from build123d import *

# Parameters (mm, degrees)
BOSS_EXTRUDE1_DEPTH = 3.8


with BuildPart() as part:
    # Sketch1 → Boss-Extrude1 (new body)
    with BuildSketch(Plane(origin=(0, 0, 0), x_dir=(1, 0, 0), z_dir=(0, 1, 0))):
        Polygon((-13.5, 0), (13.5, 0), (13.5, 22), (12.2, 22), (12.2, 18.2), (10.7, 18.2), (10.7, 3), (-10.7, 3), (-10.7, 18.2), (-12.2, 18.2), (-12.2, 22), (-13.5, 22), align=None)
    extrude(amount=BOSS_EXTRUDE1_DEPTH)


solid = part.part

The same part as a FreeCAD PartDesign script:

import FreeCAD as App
import Part
import Sketcher
from FreeCAD import Vector
Q = App.Units.Quantity

doc = App.newDocument("Part")
params = doc.addObject("Spreadsheet::Sheet", "Params")
for row, (alias, value) in enumerate([
    ("sketch1_width", "27 mm"),
    ("sketch1_height", "22 mm"),
    ("sketch1_width2", "1.3 mm"),
    ("sketch1_width3", "1.5 mm"),
    ("sketch1_height2", "3.8 mm"),
    ("pad1_length", "3.8 mm"),
], start=1):
    params.set(f"A{row}", alias)
    params.set(f"B{row}", "=" + value)
    params.setAlias(f"B{row}", alias)

body = doc.addObject("PartDesign::Body", "Body")

# Sketch on XZ plane
sketch1 = body.newObject("Sketcher::SketchObject", "Sketch")
sketch1.AttachmentSupport = (doc.getObject("XZ_Plane"), [""])
sketch1.MapMode = "FlatFace"
sketch1.addGeometry(Part.LineSegment(Vector(-13.5, 0, 0), Vector(13.5, 0, 0)), False)
sketch1.addGeometry(Part.LineSegment(Vector(13.5, 0, 0), Vector(13.5, -22, 0)), False)
sketch1.addGeometry(Part.LineSegment(Vector(13.5, -22, 0), Vector(12.2, -22, 0)), False)
sketch1.addGeometry(Part.LineSegment(Vector(12.2, -22, 0), Vector(12.2, -18.2, 0)), False)
sketch1.addGeometry(Part.LineSegment(Vector(12.2, -18.2, 0), Vector(10.7, -18.2, 0)), False)
sketch1.addGeometry(Part.LineSegment(Vector(10.7, -18.2, 0), Vector(10.7, -3, 0)), False)
sketch1.addGeometry(Part.LineSegment(Vector(10.7, -3, 0), Vector(-10.7, -3, 0)), False)
sketch1.addGeometry(Part.LineSegment(Vector(-10.7, -3, 0), Vector(-10.7, -18.2, 0)), False)
sketch1.addGeometry(Part.LineSegment(Vector(-10.7, -18.2, 0), Vector(-12.2, -18.2, 0)), False)
sketch1.addGeometry(Part.LineSegment(Vector(-12.2, -18.2, 0), Vector(-12.2, -22, 0)), False)
sketch1.addGeometry(Part.LineSegment(Vector(-12.2, -22, 0), Vector(-13.5, -22, 0)), False)
sketch1.addGeometry(Part.LineSegment(Vector(-13.5, -22, 0), Vector(-13.5, 0, 0)), False)
sketch1.addConstraint(Sketcher.Constraint("Coincident", 0, 2, 1, 1))
sketch1.addConstraint(Sketcher.Constraint("Coincident", 1, 2, 2, 1))
sketch1.addConstraint(Sketcher.Constraint("Coincident", 2, 2, 3, 1))
sketch1.addConstraint(Sketcher.Constraint("Coincident", 3, 2, 4, 1))
sketch1.addConstraint(Sketcher.Constraint("Coincident", 4, 2, 5, 1))
sketch1.addConstraint(Sketcher.Constraint("Coincident", 5, 2, 6, 1))
sketch1.addConstraint(Sketcher.Constraint("Coincident", 6, 2, 7, 1))
sketch1.addConstraint(Sketcher.Constraint("Coincident", 7, 2, 8, 1))
sketch1.addConstraint(Sketcher.Constraint("Coincident", 8, 2, 9, 1))
sketch1.addConstraint(Sketcher.Constraint("Coincident", 9, 2, 10, 1))
sketch1.addConstraint(Sketcher.Constraint("Coincident", 10, 2, 11, 1))
sketch1.addConstraint(Sketcher.Constraint("Coincident", 11, 2, 0, 1))
sketch1.addConstraint(Sketcher.Constraint("Horizontal", 0))
sketch1.addConstraint(Sketcher.Constraint("Vertical", 1))
sketch1.addConstraint(Sketcher.Constraint("Horizontal", 2))
sketch1.addConstraint(Sketcher.Constraint("Vertical", 3))
sketch1.addConstraint(Sketcher.Constraint("Horizontal", 4))
sketch1.addConstraint(Sketcher.Constraint("Vertical", 5))
sketch1.addConstraint(Sketcher.Constraint("Horizontal", 6))
sketch1.addConstraint(Sketcher.Constraint("Vertical", 7))
sketch1.addConstraint(Sketcher.Constraint("Horizontal", 8))
sketch1.addConstraint(Sketcher.Constraint("Vertical", 9))
sketch1.addConstraint(Sketcher.Constraint("Horizontal", 10))
sketch1.addConstraint(Sketcher.Constraint("Vertical", 11))
sketch1.addConstraint(Sketcher.Constraint("Symmetric", 0, 2, 11, 2, -1, 1))
sketch1.addConstraint(Sketcher.Constraint("Symmetric", 4, 2, 7, 2, -2))
sketch1.addConstraint(Sketcher.Constraint("Symmetric", 2, 2, 9, 2, -2))
sketch1.addConstraint(Sketcher.Constraint("DistanceX", 0, 1, 0, 2, Q("27 mm")))
sketch1.addConstraint(Sketcher.Constraint("DistanceY", 1, 2, 1, 1, Q("22 mm")))
sketch1.addConstraint(Sketcher.Constraint("DistanceX", 2, 2, 2, 1, Q("1.3 mm")))
sketch1.addConstraint(Sketcher.Constraint("DistanceX", 4, 2, 4, 1, Q("1.5 mm")))
sketch1.addConstraint(Sketcher.Constraint("DistanceY", 3, 1, 3, 2, Q("3.8 mm")))
sketch1.addConstraint(Sketcher.Constraint("DistanceY", 5, 1, 5, 2, Q("15.2 mm")))
sketch1.setExpression("Constraints[27]", "Params.sketch1_width")
sketch1.setExpression("Constraints[28]", "Params.sketch1_height")
sketch1.setExpression("Constraints[29]", "Params.sketch1_width2")
sketch1.setExpression("Constraints[30]", "Params.sketch1_width3")
sketch1.setExpression("Constraints[31]", "Params.sketch1_height2")
pad1 = body.newObject("PartDesign::Pad", "Pad")
pad1.Profile = sketch1
pad1.setExpression("Length", "Params.pad1_length")
pad1.Reversed = True

doc.recompute()
